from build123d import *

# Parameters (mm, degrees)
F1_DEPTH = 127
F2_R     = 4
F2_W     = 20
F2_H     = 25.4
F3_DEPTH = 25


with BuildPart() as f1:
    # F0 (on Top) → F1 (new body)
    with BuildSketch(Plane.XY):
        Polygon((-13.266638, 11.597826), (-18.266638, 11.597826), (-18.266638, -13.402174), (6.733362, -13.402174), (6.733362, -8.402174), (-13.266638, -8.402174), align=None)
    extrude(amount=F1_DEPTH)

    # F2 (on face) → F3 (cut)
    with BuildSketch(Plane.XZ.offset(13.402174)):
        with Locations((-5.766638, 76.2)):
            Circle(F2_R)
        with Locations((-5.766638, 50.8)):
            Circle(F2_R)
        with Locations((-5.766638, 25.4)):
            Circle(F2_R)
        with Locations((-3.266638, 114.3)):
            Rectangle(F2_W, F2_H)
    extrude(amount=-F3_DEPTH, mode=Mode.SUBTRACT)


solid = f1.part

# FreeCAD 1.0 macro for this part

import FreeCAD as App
import Part
import Sketcher
from FreeCAD import Vector


def add_polygon(sketch, points):
    """Adds a closed chain of lines whose ends are joined by coincident constraints."""
    first, n = sketch.GeometryCount, len(points)
    for a, b in zip(points, points[1:] + points[:1]):
        sketch.addGeometry(Part.LineSegment(App.Vector(*a, 0), App.Vector(*b, 0)), False)
    for i in range(n):
        sketch.addConstraint(Sketcher.Constraint("Coincident", first + i, 2, first + (i + 1) % n, 1))

doc = App.newDocument("Part")
body = doc.addObject("PartDesign::Body", "Body")

sketch1 = doc.addObject("Sketcher::SketchObject", "Sketch")
body.addObject(sketch1)
sketch1.AttachmentSupport = (doc.XY_Plane, [""])
sketch1.MapMode = "FlatFace"
add_polygon(sketch1, [(-13, 12), (-18, 12), (-18, -13), (7, -13), (7, -8), (-13, -8)])
sketch1.addConstraint(Sketcher.Constraint("Horizontal", 0))
sketch1.addConstraint(Sketcher.Constraint("Vertical", 1))
sketch1.addConstraint(Sketcher.Constraint("Horizontal", 2))
sketch1.addConstraint(Sketcher.Constraint("Vertical", 3))
sketch1.addConstraint(Sketcher.Constraint("Horizontal", 4))
sketch1.addConstraint(Sketcher.Constraint("Vertical", 5))
sketch1.addConstraint(Sketcher.Constraint("Equal", 2, 1))
sketch1.addConstraint(Sketcher.Constraint("Equal", 0, 3))
sketch1.addConstraint(Sketcher.Constraint("DistanceX", 0, 2, 0, 1, 5.0))
sketch1.addConstraint(Sketcher.Constraint("DistanceX", 2, 1, 2, 2, 25.0))
sketch1.addConstraint(Sketcher.Constraint("DistanceX", 0, 2, -1, 1, 18.266638))
sketch1.addConstraint(Sketcher.Constraint("DistanceY", -1, 1, 0, 2, 11.597826))
pad1 = doc.addObject("PartDesign::Pad", "Pad")
body.addObject(pad1)
pad1.Profile = sketch1
pad1.Length = 127

sketch2 = doc.addObject("Sketcher::SketchObject", "Sketch001")
body.addObject(sketch2)
sketch2.AttachmentSupport = (doc.XZ_Plane, [""])
sketch2.MapMode = "FlatFace"
sketch2.AttachmentOffset = App.Placement(Vector(0, 0, 13.402174), App.Rotation())
sketch2.addGeometry(Part.Circle(Vector(-5.8, 76.2, 0), Vector(0, 0, 1), 4), False)
sketch2.addGeometry(Part.Circle(Vector(-5.8, 50.8, 0), Vector(0, 0, 1), 4), False)
sketch2.addGeometry(Part.Circle(Vector(-5.8, 25.4, 0), Vector(0, 0, 1), 4), False)
add_polygon(sketch2, [(-13.3, 127), (-13.3, 101.6), (6.7, 101.6), (6.7, 127)])
sketch2.addConstraint(Sketcher.Constraint("Vertical", 3))
sketch2.addConstraint(Sketcher.Constraint("Horizontal", 4))
sketch2.addConstraint(Sketcher.Constraint("Vertical", 5))
sketch2.addConstraint(Sketcher.Constraint("Horizontal", 6))
sketch2.addConstraint(Sketcher.Constraint("Equal", 0, 1))
sketch2.addConstraint(Sketcher.Constraint("Equal", 1, 2))
sketch2.addConstraint(Sketcher.Constraint("Vertical", 0, 3, 1, 3))
sketch2.addConstraint(Sketcher.Constraint("Vertical", 1, 3, 2, 3))
sketch2.addConstraint(Sketcher.Constraint("Diameter", 0, 8.0))
sketch2.addConstraint(Sketcher.Constraint("DistanceX", 4, 1, 4, 2, 20.0))
sketch2.addConstraint(Sketcher.Constraint("DistanceY", 3, 2, 3, 1, 25.4))
sketch2.addConstraint(Sketcher.Constraint("DistanceY", -1, 1, 5, 2, 127.0))
sketch2.addConstraint(Sketcher.Constraint("DistanceY", -1, 1, 0, 3, 76.2))
sketch2.addConstraint(Sketcher.Constraint("DistanceY", -1, 1, 1, 3, 50.8))
sketch2.addConstraint(Sketcher.Constraint("DistanceY", -1, 1, 2, 3, 25.4))
sketch2.addConstraint(Sketcher.Constraint("DistanceX", 3, 2, 0, 3, 7.5))
sketch2.addConstraint(Sketcher.Constraint("DistanceX", 0, 3, -1, 1, 5.766638))
pocket1 = doc.addObject("PartDesign::Pocket", "Pocket")
body.addObject(pocket1)
pocket1.Profile = sketch2
pocket1.Length = 25

doc.recompute()
